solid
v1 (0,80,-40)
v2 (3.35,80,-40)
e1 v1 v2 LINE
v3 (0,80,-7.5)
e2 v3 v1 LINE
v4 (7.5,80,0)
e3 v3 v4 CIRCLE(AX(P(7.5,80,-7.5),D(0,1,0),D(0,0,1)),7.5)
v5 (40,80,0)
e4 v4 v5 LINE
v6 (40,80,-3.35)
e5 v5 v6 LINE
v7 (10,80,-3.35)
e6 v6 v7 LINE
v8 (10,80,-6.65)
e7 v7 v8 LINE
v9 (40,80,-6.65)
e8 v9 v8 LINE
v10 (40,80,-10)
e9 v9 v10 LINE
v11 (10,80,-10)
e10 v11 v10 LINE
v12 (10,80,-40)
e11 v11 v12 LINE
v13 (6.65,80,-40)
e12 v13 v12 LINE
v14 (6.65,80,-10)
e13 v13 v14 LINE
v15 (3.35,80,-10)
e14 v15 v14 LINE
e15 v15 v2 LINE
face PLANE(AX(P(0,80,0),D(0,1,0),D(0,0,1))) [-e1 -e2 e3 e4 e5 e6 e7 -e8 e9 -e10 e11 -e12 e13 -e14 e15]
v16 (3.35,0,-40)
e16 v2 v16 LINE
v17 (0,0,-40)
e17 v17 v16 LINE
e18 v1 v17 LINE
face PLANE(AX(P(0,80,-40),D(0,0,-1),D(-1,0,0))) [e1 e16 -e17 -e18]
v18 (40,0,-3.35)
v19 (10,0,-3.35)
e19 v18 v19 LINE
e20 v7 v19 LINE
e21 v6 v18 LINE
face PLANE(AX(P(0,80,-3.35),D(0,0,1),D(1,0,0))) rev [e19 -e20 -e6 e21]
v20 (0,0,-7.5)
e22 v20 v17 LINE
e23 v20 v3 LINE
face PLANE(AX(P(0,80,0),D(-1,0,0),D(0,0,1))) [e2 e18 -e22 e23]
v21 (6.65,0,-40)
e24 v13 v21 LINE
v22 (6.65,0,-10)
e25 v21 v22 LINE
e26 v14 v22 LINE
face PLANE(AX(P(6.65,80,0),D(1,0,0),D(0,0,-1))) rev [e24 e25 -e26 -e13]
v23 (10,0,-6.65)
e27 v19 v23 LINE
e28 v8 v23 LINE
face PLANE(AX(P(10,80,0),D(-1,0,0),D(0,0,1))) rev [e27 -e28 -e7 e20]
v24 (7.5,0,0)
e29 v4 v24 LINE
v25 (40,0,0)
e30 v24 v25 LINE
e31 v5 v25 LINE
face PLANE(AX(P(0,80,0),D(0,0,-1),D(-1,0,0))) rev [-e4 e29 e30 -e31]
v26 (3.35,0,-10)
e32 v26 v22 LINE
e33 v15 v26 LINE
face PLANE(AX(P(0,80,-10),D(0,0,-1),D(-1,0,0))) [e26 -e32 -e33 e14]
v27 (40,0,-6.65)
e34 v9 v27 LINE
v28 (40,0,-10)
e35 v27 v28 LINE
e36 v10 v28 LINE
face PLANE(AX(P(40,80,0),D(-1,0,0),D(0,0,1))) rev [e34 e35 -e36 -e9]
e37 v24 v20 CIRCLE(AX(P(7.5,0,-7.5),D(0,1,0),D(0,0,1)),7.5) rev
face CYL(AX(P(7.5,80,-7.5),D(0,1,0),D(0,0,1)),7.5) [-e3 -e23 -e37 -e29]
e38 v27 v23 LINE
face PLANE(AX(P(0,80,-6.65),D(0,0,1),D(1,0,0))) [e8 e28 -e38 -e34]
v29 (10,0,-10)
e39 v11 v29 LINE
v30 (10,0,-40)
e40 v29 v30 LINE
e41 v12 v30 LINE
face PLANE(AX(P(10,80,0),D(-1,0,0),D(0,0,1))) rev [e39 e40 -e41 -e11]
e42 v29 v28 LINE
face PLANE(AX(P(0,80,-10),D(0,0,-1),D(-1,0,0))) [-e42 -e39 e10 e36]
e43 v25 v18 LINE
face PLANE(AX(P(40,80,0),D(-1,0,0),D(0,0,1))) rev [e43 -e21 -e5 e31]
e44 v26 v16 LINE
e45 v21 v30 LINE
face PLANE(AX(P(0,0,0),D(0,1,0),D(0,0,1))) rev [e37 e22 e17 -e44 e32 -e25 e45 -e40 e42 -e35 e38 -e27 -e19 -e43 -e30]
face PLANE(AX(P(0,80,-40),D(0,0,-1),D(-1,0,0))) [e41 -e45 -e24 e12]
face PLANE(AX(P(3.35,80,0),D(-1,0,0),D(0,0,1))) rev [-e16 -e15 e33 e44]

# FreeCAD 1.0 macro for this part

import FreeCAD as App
import Part
import Sketcher
Q = App.Units.Quantity


def edges_at(feature, points):
    """Names of the edges that pass closest to the given points."""
    edges = feature.Shape.Edges
    near = lambda p: min(range(len(edges)), key=lambda i: edges[i].distToShape(Part.Vertex(*p))[0])
    return sorted({f"Edge{near(p) + 1}" for p in points})


def add_polygon(sketch, points):
    """Adds a closed chain of lines whose ends are joined by coincident constraints."""
    first, n = sketch.GeometryCount, len(points)
    for a, b in zip(points, points[1:] + points[:1]):
        sketch.addGeometry(Part.LineSegment(App.Vector(*a, 0), App.Vector(*b, 0)), False)
    for i in range(n):
        sketch.addConstraint(Sketcher.Constraint("Coincident", first + i, 2, first + (i + 1) % n, 1))

doc = App.newDocument("Part")
body = doc.addObject("PartDesign::Body", "Body")

# Sketch on XZ plane
sketch1 = body.newObject("Sketcher::SketchObject", "Sketch")
sketch1.AttachmentSupport = (doc.getObject("XZ_Plane"), [""])
sketch1.MapMode = "FlatFace"
add_polygon(sketch1, [(10, -6.7), (40, -6.7), (40, -10), (10, -10), (10, -40), (6.7, -40), (6.7, -10), (3.4, -10), (3.4, -40), (0, -40), (0, 0), (40, 0), (40, -3.4), (10, -3.4)])  # lines 0-13
sketch1.addConstraint(Sketcher.Constraint("Horizontal", 0))
sketch1.addConstraint(Sketcher.Constraint("Vertical", 1))
sketch1.addConstraint(Sketcher.Constraint("Horizontal", 2))
sketch1.addConstraint(Sketcher.Constraint("Vertical", 3))
sketch1.addConstraint(Sketcher.Constraint("Horizontal", 4))
sketch1.addConstraint(Sketcher.Constraint("Vertical", 5))
sketch1.addConstraint(Sketcher.Constraint("Horizontal", 6))
sketch1.addConstraint(Sketcher.Constraint("Vertical", 7))
sketch1.addConstraint(Sketcher.Constraint("Horizontal", 8))
sketch1.addConstraint(Sketcher.Constraint("Vertical", 9))
sketch1.addConstraint(Sketcher.Constraint("Horizontal", 10))
sketch1.addConstraint(Sketcher.Constraint("Vertical", 11))
sketch1.addConstraint(Sketcher.Constraint("Horizontal", 12))
sketch1.addConstraint(Sketcher.Constraint("Vertical", 13))
sketch1.addConstraint(Sketcher.Constraint("Coincident", 9, 2, -1, 1))
sketch1.addConstraint(Sketcher.Constraint("Horizontal", 2, 2, 5, 2))
sketch1.addConstraint(Sketcher.Constraint("Horizontal", 4, 2, 7, 2))
sketch1.addConstraint(Sketcher.Constraint("Vertical", 1, 2, 10, 2))
sketch1.addConstraint(Sketcher.Constraint("Vertical", 3, 2, 12, 2))
sketch1.addConstraint(Sketcher.Constraint("Equal", 4, 8))
sketch1.addConstraint(Sketcher.Constraint("Equal", 8, 1))
sketch1.addConstraint(Sketcher.Constraint("Equal", 12, 3))
sketch1.addConstraint(Sketcher.Constraint("Equal", 10, 9))
sketch1.addConstraint(Sketcher.Constraint("Equal", 1, 11))
sketch1.addConstraint(Sketcher.Constraint("DistanceX", 0, 1, 0, 2, Q("30 mm")))
sketch1.addConstraint(Sketcher.Constraint("DistanceX", 10, 1, 10, 2, Q("40 mm")))
sketch1.addConstraint(Sketcher.Constraint("DistanceX", 6, 2, 6, 1, Q("3.3 mm")))
pad1 = body.newObject("PartDesign::Pad", "Pad")
pad1.Profile = sketch1
pad1.Length = 80
pad1.Reversed = True
doc.recompute()

fillet = body.newObject("PartDesign::Fillet", "Fillet")
fillet.Base = (pad1, edges_at(pad1, [(0, 40, 0)]))
fillet.Radius = 7.5

doc.recompute()
